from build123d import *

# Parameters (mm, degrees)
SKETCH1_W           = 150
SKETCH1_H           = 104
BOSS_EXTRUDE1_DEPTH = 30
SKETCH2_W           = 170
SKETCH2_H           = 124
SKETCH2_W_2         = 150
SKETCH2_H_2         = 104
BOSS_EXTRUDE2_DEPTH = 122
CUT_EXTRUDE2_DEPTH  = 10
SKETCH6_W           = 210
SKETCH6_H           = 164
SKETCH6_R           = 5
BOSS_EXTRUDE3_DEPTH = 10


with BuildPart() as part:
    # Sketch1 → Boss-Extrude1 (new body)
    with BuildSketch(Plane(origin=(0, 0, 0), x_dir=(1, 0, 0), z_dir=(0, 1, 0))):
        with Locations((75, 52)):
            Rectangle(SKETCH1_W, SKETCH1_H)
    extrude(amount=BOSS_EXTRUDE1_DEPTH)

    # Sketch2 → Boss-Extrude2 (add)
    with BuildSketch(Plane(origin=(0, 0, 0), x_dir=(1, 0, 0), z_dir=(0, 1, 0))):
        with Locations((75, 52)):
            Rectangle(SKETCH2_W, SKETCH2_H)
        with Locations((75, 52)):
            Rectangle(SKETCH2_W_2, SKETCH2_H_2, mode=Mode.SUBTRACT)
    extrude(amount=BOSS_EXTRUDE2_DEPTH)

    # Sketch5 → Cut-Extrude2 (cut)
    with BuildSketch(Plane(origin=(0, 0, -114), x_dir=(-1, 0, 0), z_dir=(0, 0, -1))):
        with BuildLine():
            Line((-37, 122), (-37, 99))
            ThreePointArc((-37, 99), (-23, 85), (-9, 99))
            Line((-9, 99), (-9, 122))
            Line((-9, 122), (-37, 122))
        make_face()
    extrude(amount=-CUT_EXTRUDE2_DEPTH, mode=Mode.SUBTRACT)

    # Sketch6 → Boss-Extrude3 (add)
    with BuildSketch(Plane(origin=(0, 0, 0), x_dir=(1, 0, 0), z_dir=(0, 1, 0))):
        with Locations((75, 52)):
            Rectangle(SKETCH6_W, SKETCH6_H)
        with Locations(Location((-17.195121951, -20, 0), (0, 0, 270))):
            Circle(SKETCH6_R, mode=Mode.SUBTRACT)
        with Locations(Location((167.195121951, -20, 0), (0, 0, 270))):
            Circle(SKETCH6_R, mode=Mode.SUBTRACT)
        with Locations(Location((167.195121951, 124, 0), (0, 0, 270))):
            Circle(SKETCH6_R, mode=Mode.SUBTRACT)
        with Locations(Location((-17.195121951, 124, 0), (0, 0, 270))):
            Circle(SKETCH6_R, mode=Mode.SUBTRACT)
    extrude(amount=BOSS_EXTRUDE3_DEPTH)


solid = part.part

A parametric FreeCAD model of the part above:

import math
import FreeCAD as App
import Part
import Sketcher
from FreeCAD import Vector

doc = App.newDocument("Part")
body = doc.addObject("PartDesign::Body", "Body")

# Sketch on XZ plane
sketch1 = body.newObject("Sketcher::SketchObject", "Sketch")
sketch1.AttachmentSupport = (doc.getObject("XZ_Plane"), [""])
sketch1.MapMode = "FlatFace"
sketch1.addGeometry([
    Part.LineSegment(Vector(0, -104, 0), Vector(0, 0, 0)),
    Part.LineSegment(Vector(0, 0, 0), Vector(150, 0, 0)),
    Part.LineSegment(Vector(150, 0, 0), Vector(150, -104, 0)),
    Part.LineSegment(Vector(150, -104, 0), Vector(0, -104, 0)),
], False)
sketch1.addConstraint([
    Sketcher.Constraint("Coincident", 0, 2, 1, 1),
    Sketcher.Constraint("Coincident", 1, 2, 2, 1),
    Sketcher.Constraint("Coincident", 2, 2, 3, 1),
    Sketcher.Constraint("Coincident", 3, 2, 0, 1),
    Sketcher.Constraint("Vertical", 0),
    Sketcher.Constraint("Horizontal", 1),
    Sketcher.Constraint("Vertical", 2),
    Sketcher.Constraint("Horizontal", 3),
    Sketcher.Constraint("Coincident", 0, 2, -1, 1),
    Sketcher.Constraint("DistanceX", 1, 1, 1, 2, 150.0),
    Sketcher.Constraint("DistanceY", 0, 1, 0, 2, 104.0),
])
pad1 = body.newObject("PartDesign::Pad", "Pad")
pad1.Profile = sketch1
pad1.Length = 30
pad1.Reversed = True

# Sketch on XZ plane
sketch2 = body.newObject("Sketcher::SketchObject", "Sketch001")
sketch2.AttachmentSupport = (doc.getObject("XZ_Plane"), [""])
sketch2.MapMode = "FlatFace"
sketch2.addGeometry([
    Part.LineSegment(Vector(-10, -114, 0), Vector(-10, 10, 0)),  # 0
    Part.LineSegment(Vector(-10, 10, 0), Vector(160, 10, 0)),  # 1
    Part.LineSegment(Vector(160, 10, 0), Vector(160, -114, 0)),  # 2
    Part.LineSegment(Vector(160, -114, 0), Vector(-10, -114, 0)),  # 3
    Part.LineSegment(Vector(150, 0, 0), Vector(0, 0, 0)),  # 4
    Part.LineSegment(Vector(0, 0, 0), Vector(0, -104, 0)),  # 5
    Part.LineSegment(Vector(0, -104, 0), Vector(150, -104, 0)),  # 6
    Part.LineSegment(Vector(150, -104, 0), Vector(150, 0, 0)),  # 7
], False)
sketch2.addConstraint([
    Sketcher.Constraint("Coincident", 0, 2, 1, 1),
    Sketcher.Constraint("Coincident", 1, 2, 2, 1),
    Sketcher.Constraint("Coincident", 2, 2, 3, 1),
    Sketcher.Constraint("Coincident", 3, 2, 0, 1),
    Sketcher.Constraint("Coincident", 4, 2, 5, 1),
    Sketcher.Constraint("Coincident", 5, 2, 6, 1),
    Sketcher.Constraint("Coincident", 6, 2, 7, 1),
    Sketcher.Constraint("Coincident", 7, 2, 4, 1),
    Sketcher.Constraint("Vertical", 0),
    Sketcher.Constraint("Horizontal", 1),
    Sketcher.Constraint("Vertical", 2),
    Sketcher.Constraint("Horizontal", 3),
    Sketcher.Constraint("Horizontal", 4),
    Sketcher.Constraint("Vertical", 5),
    Sketcher.Constraint("Horizontal", 6),
    Sketcher.Constraint("Vertical", 7),
    Sketcher.Constraint("Coincident", 4, 2, -1, 1),
    Sketcher.Constraint("DistanceX", 1, 1, 1, 2, 170.0),
    Sketcher.Constraint("DistanceX", 4, 2, 4, 1, 150.0),
    Sketcher.Constraint("DistanceY", 0, 1, 0, 2, 124.0),
    Sketcher.Constraint("DistanceY", 5, 2, 5, 1, 104.0),
    Sketcher.Constraint("DistanceX", 0, 2, -1, 1, 10.0),
    Sketcher.Constraint("DistanceY", -1, 1, 0, 2, 10.0),
])
pad2 = body.newObject("PartDesign::Pad", "Pad001")
pad2.Profile = sketch2
pad2.Length = 122
pad2.Reversed = True

# Sketch on XY plane
sketch3 = body.newObject("Sketcher::SketchObject", "Sketch002")
sketch3.AttachmentSupport = (doc.getObject("XY_Plane"), [""])
sketch3.MapMode = "FlatFace"
sketch3.AttachmentOffset = App.Placement(Vector(0, 0, -114), App.Rotation())
sketch3.addGeometry([
    Part.LineSegment(Vector(37, 122, 0), Vector(37, 99, 0)),
    Part.ArcOfCircle(Part.Circle(Vector(23, 99, 0), Vector(0, 0, 1), 14), math.radians(180), math.radians(360)),
    Part.LineSegment(Vector(9, 99, 0), Vector(9, 122, 0)),
    Part.LineSegment(Vector(9, 122, 0), Vector(37, 122, 0)),
], False)
sketch3.addConstraint([
    Sketcher.Constraint("Tangent", 0, 2, 1, 2),
    Sketcher.Constraint("Tangent", 1, 1, 2, 1),
    Sketcher.Constraint("Coincident", 2, 2, 3, 1),
    Sketcher.Constraint("Coincident", 3, 2, 0, 1),
    Sketcher.Constraint("Vertical", 0),
    Sketcher.Constraint("Vertical", 2),
    Sketcher.Constraint("Horizontal", 3),
    Sketcher.Constraint("Radius", 1, 14.0),
    Sketcher.Constraint("DistanceY", 0, 2, 0, 1, 23.0),
    Sketcher.Constraint("DistanceX", -1, 1, 1, 3, 23.0),
    Sketcher.Constraint("DistanceY", -1, 1, 1, 3, 99.0),
])
pocket1 = body.newObject("PartDesign::Pocket", "Pocket")
pocket1.Profile = sketch3
pocket1.Length = 10
pocket1.Reversed = True

# Sketch on XZ plane
sketch4 = body.newObject("Sketcher::SketchObject", "Sketch003")
sketch4.AttachmentSupport = (doc.getObject("XZ_Plane"), [""])
sketch4.MapMode = "FlatFace"
sketch4.addGeometry([
    Part.LineSegment(Vector(-30, -134, 0), Vector(-30, 30, 0)),  # 0
    Part.LineSegment(Vector(-30, 30, 0), Vector(180, 30, 0)),  # 1
    Part.LineSegment(Vector(180, 30, 0), Vector(180, -134, 0)),  # 2
    Part.LineSegment(Vector(180, -134, 0), Vector(-30, -134, 0)),  # 3
    Part.Circle(Vector(-17, 20, 0), Vector(0, 0, 1), 5),  # 4
    Part.Circle(Vector(167, 20, 0), Vector(0, 0, 1), 5),  # 5
    Part.Circle(Vector(-17, -124, 0), Vector(0, 0, 1), 5),  # 6
    Part.Circle(Vector(167, -124, 0), Vector(0, 0, 1), 5),  # 7
], False)
sketch4.addConstraint([
    Sketcher.Constraint("Coincident", 0, 2, 1, 1),
    Sketcher.Constraint("Coincident", 1, 2, 2, 1),
    Sketcher.Constraint("Coincident", 2, 2, 3, 1),
    Sketcher.Constraint("Coincident", 3, 2, 0, 1),
    Sketcher.Constraint("Vertical", 0),
    Sketcher.Constraint("Horizontal", 1),
    Sketcher.Constraint("Vertical", 2),
    Sketcher.Constraint("Horizontal", 3),
    Sketcher.Constraint("Equal", 4, 5),
    Sketcher.Constraint("Equal", 5, 6),
    Sketcher.Constraint("Equal", 6, 7),
    Sketcher.Constraint("Horizontal", 4, 3, 5, 3),
    Sketcher.Constraint("Horizontal", 6, 3, 7, 3),
    Sketcher.Constraint("Vertical", 4, 3, 6, 3),
    Sketcher.Constraint("Vertical", 5, 3, 7, 3),
    Sketcher.Constraint("Diameter", 4, 10.0),
    Sketcher.Constraint("DistanceX", 1, 1, 1, 2, 210.0),
    Sketcher.Constraint("DistanceY", 0, 1, 0, 2, 164.0),
    Sketcher.Constraint("DistanceY", -1, 1, 4, 3, 20.0),
    Sketcher.Constraint("DistanceY", 6, 3, -1, 1, 124.0),
    Sketcher.Constraint("DistanceX", 0, 2, -1, 1, 30.0),
    Sketcher.Constraint("DistanceY", -1, 1, 0, 2, 30.0),
    Sketcher.Constraint("DistanceX", 4, 3, -1, 1, 17.195122),
    Sketcher.Constraint("DistanceX", -1, 1, 5, 3, 167.195122),
])
pad3 = body.newObject("PartDesign::Pad", "Pad002")
pad3.Profile = sketch4
pad3.Length = 10
pad3.Reversed = True

doc.recompute()
